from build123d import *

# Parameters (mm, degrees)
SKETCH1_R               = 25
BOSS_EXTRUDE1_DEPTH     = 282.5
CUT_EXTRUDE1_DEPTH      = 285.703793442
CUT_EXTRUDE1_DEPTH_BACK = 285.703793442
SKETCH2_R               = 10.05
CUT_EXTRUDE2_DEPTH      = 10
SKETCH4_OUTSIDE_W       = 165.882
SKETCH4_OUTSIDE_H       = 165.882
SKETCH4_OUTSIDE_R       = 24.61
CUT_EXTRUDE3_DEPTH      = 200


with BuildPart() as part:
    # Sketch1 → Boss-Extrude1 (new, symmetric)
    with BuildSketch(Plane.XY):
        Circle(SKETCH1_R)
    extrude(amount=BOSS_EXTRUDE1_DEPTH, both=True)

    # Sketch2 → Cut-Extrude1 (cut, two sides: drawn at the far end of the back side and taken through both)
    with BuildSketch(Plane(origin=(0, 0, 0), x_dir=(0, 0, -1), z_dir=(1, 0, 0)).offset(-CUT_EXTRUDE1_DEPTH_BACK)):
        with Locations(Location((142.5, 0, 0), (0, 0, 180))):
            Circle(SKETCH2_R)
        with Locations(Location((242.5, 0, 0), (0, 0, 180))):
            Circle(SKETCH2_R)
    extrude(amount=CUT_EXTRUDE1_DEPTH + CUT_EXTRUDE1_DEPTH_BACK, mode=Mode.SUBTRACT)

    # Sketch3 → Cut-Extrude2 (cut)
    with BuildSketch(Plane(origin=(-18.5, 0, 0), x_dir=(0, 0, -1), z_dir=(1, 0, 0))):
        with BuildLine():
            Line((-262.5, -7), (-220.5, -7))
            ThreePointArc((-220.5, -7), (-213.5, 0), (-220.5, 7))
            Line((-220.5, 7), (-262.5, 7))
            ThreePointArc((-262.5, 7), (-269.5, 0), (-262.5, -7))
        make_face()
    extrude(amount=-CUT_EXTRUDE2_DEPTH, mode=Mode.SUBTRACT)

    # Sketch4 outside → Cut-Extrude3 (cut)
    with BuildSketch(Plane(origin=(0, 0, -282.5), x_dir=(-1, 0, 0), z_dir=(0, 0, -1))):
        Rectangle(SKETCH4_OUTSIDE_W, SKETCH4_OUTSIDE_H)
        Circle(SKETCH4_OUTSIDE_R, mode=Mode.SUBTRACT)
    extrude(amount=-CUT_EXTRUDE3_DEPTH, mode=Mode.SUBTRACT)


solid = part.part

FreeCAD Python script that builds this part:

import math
import FreeCAD as App
import Part
import Sketcher

V = App.Vector
Q = App.Units.Quantity


def add_polygon(sketch, points):
    """Adds a closed chain of lines whose ends are joined by coincident constraints."""
    first, n = sketch.GeometryCount, len(points)
    for a, b in zip(points, points[1:] + points[:1]):
        sketch.addGeometry(Part.LineSegment(App.Vector(*a, 0), App.Vector(*b, 0)), False)
    for i in range(n):
        sketch.addConstraint(Sketcher.Constraint("Coincident", first + i, 2, first + (i + 1) % n, 1))

doc = App.newDocument("Part")
body = doc.addObject("PartDesign::Body", "Body")

# Sketch on XY plane
sketch1 = body.newObject("Sketcher::SketchObject", "Sketch")
sketch1.AttachmentSupport = (doc.getObject("XY_Plane"), [""])
sketch1.MapMode = "FlatFace"
sketch1.addGeometry(Part.Circle(V(0, 0, 0), V(0, 0, 1), 25), False)
sketch1.addConstraint([
    Sketcher.Constraint("Coincident", 0, 3, -1, 1),
    Sketcher.Constraint("Diameter", 0, Q("50 mm")),
])
pad1 = body.newObject("PartDesign::Pad", "Pad")
pad1.Profile = sketch1
pad1.Length = 565
pad1.Midplane = True

# Sketch on YZ plane
sketch2 = body.newObject("Sketcher::SketchObject", "Sketch001")
sketch2.AttachmentSupport = (doc.getObject("YZ_Plane"), [""])
sketch2.MapMode = "FlatFace"
sketch2.addGeometry([
    Part.Circle(V(0, -142, 0), V(0, 0, 1), 10),
    Part.Circle(V(0, -242, 0), V(0, 0, 1), 10),
], False)
sketch2.addConstraint([
    Sketcher.Constraint("Equal", 0, 1),
    Sketcher.Constraint("PointOnObject", 0, 3, -2),
    Sketcher.Constraint("PointOnObject", 1, 3, -2),
    Sketcher.Constraint("Diameter", 0, Q("20.1 mm")),
    Sketcher.Constraint("DistanceY", 1, 3, 0, 3, Q("100 mm")),
    Sketcher.Constraint("DistanceY", 0, 3, -1, 1, Q("142.5 mm")),
])
pocket1 = body.newObject("PartDesign::Pocket", "Pocket")
pocket1.Profile = sketch2
pocket1.Type = "ThroughAll"
pocket1.Midplane = True

# Sketch on YZ plane
sketch3 = body.newObject("Sketcher::SketchObject", "Sketch002")
sketch3.AttachmentSupport = (doc.getObject("YZ_Plane"), [""])
sketch3.MapMode = "FlatFace"
sketch3.AttachmentOffset = App.Placement(V(0, 0, -18.5), App.Rotation())
sketch3.addGeometry([
    Part.LineSegment(V(-7, 262, 0), V(-7, 220, 0)),
    Part.ArcOfCircle(Part.Circle(V(0, 220, 0), V(0, 0, 1), 7), math.radians(180), math.radians(360)),
    Part.LineSegment(V(7, 220, 0), V(7, 262, 0)),
    Part.ArcOfCircle(Part.Circle(V(0, 262, 0), V(0, 0, 1), 7), math.radians(0), math.radians(180)),
], False)
sketch3.addConstraint([
    Sketcher.Constraint("Tangent", 0, 2, 1, 1),
    Sketcher.Constraint("Tangent", 1, 2, 2, 1),
    Sketcher.Constraint("Tangent", 2, 2, 3, 1),
    Sketcher.Constraint("Tangent", 3, 2, 0, 1),
    Sketcher.Constraint("Vertical", 0),
    Sketcher.Constraint("Vertical", 2),
    Sketcher.Constraint("PointOnObject", 1, 3, -2),
    Sketcher.Constraint("Radius", 1, Q("7 mm")),
    Sketcher.Constraint("DistanceY", 0, 2, 0, 1, Q("42 mm")),
    Sketcher.Constraint("DistanceY", -1, 1, 1, 3, Q("220.5 mm")),
])
pocket2 = body.newObject("PartDesign::Pocket", "Pocket001")
pocket2.Profile = sketch3
pocket2.Length = 10

# Sketch on XY plane
sketch4 = body.newObject("Sketcher::SketchObject", "Sketch003")
sketch4.AttachmentSupport = (doc.getObject("XY_Plane"), [""])
sketch4.MapMode = "FlatFace"
sketch4.AttachmentOffset = App.Placement(V(0, 0, -282.5), App.Rotation())
add_polygon(sketch4, [(83, 83), (83, -83), (-83, -83), (-83, 83)])  # lines 0-3
sketch4.addGeometry(Part.Circle(V(0, 0, 0), V(0, 0, 1), 25), False)  # 4
sketch4.addConstraint([
    Sketcher.Constraint("Vertical", 0),
    Sketcher.Constraint("Horizontal", 1),
    Sketcher.Constraint("Vertical", 2),
    Sketcher.Constraint("Horizontal", 3),
    Sketcher.Constraint("Coincident", 4, 3, -1, 1),
    Sketcher.Constraint("Symmetric", 0, 2, 2, 2, -1, 1),
    Sketcher.Constraint("Equal", 3, 0),
    Sketcher.Constraint("Diameter", 4, Q("49.22 mm")),
    Sketcher.Constraint("DistanceX", 1, 2, 1, 1, Q("165.882 mm")),
])
pocket3 = body.newObject("PartDesign::Pocket", "Pocket002")
pocket3.Profile = sketch4
pocket3.Length = 200
pocket3.Reversed = True

doc.recompute()
